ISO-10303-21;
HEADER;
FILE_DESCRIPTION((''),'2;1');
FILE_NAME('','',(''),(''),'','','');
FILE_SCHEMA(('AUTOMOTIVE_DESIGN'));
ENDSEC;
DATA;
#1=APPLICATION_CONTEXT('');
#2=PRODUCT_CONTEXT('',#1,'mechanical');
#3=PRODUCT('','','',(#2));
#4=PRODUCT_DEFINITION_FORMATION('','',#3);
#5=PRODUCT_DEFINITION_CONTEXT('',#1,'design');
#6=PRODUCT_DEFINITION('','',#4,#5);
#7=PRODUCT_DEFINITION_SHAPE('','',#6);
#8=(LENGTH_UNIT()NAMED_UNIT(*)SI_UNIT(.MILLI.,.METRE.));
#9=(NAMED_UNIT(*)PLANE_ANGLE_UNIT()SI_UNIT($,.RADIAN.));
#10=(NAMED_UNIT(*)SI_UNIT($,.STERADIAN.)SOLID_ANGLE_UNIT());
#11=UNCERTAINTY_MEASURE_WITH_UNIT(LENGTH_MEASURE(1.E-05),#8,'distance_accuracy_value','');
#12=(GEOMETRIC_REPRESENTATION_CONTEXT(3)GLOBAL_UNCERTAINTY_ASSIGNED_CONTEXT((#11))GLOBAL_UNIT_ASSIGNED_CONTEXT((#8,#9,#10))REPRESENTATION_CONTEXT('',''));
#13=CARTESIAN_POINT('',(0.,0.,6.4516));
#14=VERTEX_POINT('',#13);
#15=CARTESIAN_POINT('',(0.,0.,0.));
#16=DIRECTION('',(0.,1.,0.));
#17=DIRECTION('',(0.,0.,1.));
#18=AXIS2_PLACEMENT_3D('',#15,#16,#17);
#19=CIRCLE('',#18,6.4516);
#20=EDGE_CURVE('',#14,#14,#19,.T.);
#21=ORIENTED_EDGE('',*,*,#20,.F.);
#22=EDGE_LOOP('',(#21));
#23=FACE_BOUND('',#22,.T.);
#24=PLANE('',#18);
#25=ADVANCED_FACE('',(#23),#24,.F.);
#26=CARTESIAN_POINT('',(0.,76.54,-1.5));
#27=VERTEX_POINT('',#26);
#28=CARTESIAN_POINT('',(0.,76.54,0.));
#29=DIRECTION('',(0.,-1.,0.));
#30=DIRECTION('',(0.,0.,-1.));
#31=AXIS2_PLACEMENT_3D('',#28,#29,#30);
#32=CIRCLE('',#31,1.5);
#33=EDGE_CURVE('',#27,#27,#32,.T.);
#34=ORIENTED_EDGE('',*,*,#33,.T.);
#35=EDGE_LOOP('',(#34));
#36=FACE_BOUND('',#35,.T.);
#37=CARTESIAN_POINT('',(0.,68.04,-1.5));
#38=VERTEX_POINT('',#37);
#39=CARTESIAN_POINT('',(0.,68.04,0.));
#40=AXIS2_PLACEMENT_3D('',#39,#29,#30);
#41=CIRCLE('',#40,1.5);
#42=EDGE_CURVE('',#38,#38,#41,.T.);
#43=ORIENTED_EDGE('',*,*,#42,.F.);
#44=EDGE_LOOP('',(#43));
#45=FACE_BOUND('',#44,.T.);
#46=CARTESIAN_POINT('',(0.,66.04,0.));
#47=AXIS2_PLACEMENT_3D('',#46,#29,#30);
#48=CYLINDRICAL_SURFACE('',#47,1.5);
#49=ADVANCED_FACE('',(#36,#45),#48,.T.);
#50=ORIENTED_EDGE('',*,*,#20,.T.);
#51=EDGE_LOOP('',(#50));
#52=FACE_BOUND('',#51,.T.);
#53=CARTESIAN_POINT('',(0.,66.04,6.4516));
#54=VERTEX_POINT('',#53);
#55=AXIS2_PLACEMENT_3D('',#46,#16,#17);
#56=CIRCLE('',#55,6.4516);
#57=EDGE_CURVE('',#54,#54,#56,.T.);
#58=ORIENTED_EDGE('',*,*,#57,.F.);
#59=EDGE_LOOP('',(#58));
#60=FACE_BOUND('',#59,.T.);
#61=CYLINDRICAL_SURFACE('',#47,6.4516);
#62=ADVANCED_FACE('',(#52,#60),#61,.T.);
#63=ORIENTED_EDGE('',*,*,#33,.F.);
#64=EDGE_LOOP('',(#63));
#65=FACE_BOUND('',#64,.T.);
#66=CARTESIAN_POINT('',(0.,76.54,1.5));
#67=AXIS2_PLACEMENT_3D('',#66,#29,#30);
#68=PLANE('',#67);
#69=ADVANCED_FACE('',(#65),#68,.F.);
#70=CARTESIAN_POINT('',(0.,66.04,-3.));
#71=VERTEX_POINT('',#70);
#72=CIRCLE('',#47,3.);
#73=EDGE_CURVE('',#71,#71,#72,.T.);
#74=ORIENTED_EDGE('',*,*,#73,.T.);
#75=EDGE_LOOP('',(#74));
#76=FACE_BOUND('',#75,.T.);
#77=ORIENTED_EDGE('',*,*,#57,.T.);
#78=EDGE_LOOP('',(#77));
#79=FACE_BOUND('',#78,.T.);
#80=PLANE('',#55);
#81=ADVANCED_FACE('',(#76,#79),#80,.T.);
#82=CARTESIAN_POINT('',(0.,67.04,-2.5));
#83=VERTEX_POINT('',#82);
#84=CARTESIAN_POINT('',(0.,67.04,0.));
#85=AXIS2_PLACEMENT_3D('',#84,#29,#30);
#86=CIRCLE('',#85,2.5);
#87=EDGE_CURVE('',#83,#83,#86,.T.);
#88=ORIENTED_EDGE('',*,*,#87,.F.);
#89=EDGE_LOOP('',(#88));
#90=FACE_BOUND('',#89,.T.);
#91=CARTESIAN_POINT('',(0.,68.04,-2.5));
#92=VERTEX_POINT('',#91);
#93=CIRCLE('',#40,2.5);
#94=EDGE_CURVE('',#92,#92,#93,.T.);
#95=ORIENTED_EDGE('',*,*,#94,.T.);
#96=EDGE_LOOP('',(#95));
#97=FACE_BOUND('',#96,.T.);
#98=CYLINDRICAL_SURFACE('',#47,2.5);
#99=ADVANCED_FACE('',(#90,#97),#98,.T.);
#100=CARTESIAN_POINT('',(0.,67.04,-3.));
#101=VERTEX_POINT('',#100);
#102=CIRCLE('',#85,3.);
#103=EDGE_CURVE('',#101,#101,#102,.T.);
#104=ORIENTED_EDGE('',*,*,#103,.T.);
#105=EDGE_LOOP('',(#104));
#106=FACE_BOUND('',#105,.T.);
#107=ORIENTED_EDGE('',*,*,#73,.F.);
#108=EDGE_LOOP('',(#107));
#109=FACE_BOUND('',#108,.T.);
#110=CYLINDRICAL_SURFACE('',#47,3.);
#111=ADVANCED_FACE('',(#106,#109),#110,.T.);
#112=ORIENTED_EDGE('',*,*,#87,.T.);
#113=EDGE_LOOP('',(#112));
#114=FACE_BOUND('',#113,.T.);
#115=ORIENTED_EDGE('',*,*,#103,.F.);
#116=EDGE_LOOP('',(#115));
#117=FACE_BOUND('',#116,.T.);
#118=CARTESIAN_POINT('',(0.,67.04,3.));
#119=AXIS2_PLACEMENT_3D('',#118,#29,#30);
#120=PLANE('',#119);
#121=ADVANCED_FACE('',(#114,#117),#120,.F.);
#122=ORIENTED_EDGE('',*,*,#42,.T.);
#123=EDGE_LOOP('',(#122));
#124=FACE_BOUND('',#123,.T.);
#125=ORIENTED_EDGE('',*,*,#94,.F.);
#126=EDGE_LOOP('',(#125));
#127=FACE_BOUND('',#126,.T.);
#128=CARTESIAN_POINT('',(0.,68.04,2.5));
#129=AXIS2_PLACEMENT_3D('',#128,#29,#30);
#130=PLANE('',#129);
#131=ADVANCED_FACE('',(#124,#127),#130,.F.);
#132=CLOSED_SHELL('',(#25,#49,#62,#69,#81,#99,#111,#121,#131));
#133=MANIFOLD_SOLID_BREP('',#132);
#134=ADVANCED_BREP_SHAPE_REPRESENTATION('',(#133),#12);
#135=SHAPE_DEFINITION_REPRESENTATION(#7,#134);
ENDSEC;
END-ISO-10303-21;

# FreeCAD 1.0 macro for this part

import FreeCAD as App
import Part
import Sketcher

V = App.Vector
Q = App.Units.Quantity

doc = App.newDocument("Part")
body = doc.addObject("PartDesign::Body", "Body")

# Sketch on XZ plane
sketch1 = doc.addObject("Sketcher::SketchObject", "Sketch")
body.addObject(sketch1)
sketch1.AttachmentSupport = (doc.XZ_Plane, [""])
sketch1.MapMode = "FlatFace"
sketch1.addGeometry(Part.Circle(V(0, 0, 0), V(0, 0, 1), 6.4516), False)
sketch1.addConstraint(Sketcher.Constraint("Coincident", 0, 3, -1, 1))
sketch1.addConstraint(Sketcher.Constraint("Diameter", 0, Q("12.9032 mm")))
pad1 = doc.addObject("PartDesign::Pad", "Pad")
body.addObject(pad1)
pad1.Profile = sketch1
pad1.Length = 66.04
pad1.Reversed = True

# Sketch on YZ plane
sketch2 = doc.addObject("Sketcher::SketchObject", "Sketch001")
body.addObject(sketch2)
sketch2.AttachmentSupport = (doc.YZ_Plane, [""])
sketch2.MapMode = "FlatFace"
sketch2.addGeometry(Part.LineSegment(V(66.04, 0, 0), V(76.54, 0, 0)), False)
sketch2.addGeometry(Part.LineSegment(V(76.54, 0, 0), V(76.54, 1.5, 0)), False)
sketch2.addGeometry(Part.LineSegment(V(76.54, 1.5, 0), V(68.04, 1.5, 0)), False)
sketch2.addGeometry(Part.LineSegment(V(68.04, 1.5, 0), V(68.04, 2.5, 0)), False)
sketch2.addGeometry(Part.LineSegment(V(68.04, 2.5, 0), V(67.04, 2.5, 0)), False)
sketch2.addGeometry(Part.LineSegment(V(67.04, 2.5, 0), V(67.04, 3, 0)), False)
sketch2.addGeometry(Part.LineSegment(V(67.04, 3, 0), V(66.04, 3, 0)), False)
sketch2.addGeometry(Part.LineSegment(V(66.04, 3, 0), V(66.04, 0, 0)), False)
sketch2.addConstraint(Sketcher.Constraint("Coincident", 0, 2, 1, 1))
sketch2.addConstraint(Sketcher.Constraint("Coincident", 1, 2, 2, 1))
sketch2.addConstraint(Sketcher.Constraint("Coincident", 2, 2, 3, 1))
sketch2.addConstraint(Sketcher.Constraint("Coincident", 3, 2, 4, 1))
sketch2.addConstraint(Sketcher.Constraint("Coincident", 4, 2, 5, 1))
sketch2.addConstraint(Sketcher.Constraint("Coincident", 5, 2, 6, 1))
sketch2.addConstraint(Sketcher.Constraint("Coincident", 6, 2, 7, 1))
sketch2.addConstraint(Sketcher.Constraint("Coincident", 7, 2, 0, 1))
sketch2.addConstraint(Sketcher.Constraint("Horizontal", 0))
sketch2.addConstraint(Sketcher.Constraint("Vertical", 1))
sketch2.addConstraint(Sketcher.Constraint("Horizontal", 2))
sketch2.addConstraint(Sketcher.Constraint("Vertical", 3))
sketch2.addConstraint(Sketcher.Constraint("Horizontal", 4))
sketch2.addConstraint(Sketcher.Constraint("Vertical", 5))
sketch2.addConstraint(Sketcher.Constraint("Horizontal", 6))
sketch2.addConstraint(Sketcher.Constraint("Vertical", 7))
sketch2.addConstraint(Sketcher.Constraint("PointOnObject", 0, 2, -1))
sketch2.addConstraint(Sketcher.Constraint("Equal", 4, 6))
sketch2.addConstraint(Sketcher.Constraint("Equal", 6, 3))
sketch2.addConstraint(Sketcher.Constraint("DistanceX", 4, 2, 4, 1, Q("1 mm")))
sketch2.addConstraint(Sketcher.Constraint("DistanceY", 7, 2, 7, 1, Q("3 mm")))
sketch2.addConstraint(Sketcher.Constraint("DistanceX", 0, 1, 0, 2, Q("10.5 mm")))
sketch2.addConstraint(Sketcher.Constraint("DistanceY", 1, 1, 1, 2, Q("1.5 mm")))
sketch2.addConstraint(Sketcher.Constraint("DistanceX", -1, 1, 0, 2, Q("76.54 mm")))
revolution = doc.addObject("PartDesign::Revolution", "Revolution")
body.addObject(revolution)
revolution.Profile = sketch2
revolution.ReferenceAxis = (sketch2, ["H_Axis"])
revolution.Angle = 360

doc.recompute()
